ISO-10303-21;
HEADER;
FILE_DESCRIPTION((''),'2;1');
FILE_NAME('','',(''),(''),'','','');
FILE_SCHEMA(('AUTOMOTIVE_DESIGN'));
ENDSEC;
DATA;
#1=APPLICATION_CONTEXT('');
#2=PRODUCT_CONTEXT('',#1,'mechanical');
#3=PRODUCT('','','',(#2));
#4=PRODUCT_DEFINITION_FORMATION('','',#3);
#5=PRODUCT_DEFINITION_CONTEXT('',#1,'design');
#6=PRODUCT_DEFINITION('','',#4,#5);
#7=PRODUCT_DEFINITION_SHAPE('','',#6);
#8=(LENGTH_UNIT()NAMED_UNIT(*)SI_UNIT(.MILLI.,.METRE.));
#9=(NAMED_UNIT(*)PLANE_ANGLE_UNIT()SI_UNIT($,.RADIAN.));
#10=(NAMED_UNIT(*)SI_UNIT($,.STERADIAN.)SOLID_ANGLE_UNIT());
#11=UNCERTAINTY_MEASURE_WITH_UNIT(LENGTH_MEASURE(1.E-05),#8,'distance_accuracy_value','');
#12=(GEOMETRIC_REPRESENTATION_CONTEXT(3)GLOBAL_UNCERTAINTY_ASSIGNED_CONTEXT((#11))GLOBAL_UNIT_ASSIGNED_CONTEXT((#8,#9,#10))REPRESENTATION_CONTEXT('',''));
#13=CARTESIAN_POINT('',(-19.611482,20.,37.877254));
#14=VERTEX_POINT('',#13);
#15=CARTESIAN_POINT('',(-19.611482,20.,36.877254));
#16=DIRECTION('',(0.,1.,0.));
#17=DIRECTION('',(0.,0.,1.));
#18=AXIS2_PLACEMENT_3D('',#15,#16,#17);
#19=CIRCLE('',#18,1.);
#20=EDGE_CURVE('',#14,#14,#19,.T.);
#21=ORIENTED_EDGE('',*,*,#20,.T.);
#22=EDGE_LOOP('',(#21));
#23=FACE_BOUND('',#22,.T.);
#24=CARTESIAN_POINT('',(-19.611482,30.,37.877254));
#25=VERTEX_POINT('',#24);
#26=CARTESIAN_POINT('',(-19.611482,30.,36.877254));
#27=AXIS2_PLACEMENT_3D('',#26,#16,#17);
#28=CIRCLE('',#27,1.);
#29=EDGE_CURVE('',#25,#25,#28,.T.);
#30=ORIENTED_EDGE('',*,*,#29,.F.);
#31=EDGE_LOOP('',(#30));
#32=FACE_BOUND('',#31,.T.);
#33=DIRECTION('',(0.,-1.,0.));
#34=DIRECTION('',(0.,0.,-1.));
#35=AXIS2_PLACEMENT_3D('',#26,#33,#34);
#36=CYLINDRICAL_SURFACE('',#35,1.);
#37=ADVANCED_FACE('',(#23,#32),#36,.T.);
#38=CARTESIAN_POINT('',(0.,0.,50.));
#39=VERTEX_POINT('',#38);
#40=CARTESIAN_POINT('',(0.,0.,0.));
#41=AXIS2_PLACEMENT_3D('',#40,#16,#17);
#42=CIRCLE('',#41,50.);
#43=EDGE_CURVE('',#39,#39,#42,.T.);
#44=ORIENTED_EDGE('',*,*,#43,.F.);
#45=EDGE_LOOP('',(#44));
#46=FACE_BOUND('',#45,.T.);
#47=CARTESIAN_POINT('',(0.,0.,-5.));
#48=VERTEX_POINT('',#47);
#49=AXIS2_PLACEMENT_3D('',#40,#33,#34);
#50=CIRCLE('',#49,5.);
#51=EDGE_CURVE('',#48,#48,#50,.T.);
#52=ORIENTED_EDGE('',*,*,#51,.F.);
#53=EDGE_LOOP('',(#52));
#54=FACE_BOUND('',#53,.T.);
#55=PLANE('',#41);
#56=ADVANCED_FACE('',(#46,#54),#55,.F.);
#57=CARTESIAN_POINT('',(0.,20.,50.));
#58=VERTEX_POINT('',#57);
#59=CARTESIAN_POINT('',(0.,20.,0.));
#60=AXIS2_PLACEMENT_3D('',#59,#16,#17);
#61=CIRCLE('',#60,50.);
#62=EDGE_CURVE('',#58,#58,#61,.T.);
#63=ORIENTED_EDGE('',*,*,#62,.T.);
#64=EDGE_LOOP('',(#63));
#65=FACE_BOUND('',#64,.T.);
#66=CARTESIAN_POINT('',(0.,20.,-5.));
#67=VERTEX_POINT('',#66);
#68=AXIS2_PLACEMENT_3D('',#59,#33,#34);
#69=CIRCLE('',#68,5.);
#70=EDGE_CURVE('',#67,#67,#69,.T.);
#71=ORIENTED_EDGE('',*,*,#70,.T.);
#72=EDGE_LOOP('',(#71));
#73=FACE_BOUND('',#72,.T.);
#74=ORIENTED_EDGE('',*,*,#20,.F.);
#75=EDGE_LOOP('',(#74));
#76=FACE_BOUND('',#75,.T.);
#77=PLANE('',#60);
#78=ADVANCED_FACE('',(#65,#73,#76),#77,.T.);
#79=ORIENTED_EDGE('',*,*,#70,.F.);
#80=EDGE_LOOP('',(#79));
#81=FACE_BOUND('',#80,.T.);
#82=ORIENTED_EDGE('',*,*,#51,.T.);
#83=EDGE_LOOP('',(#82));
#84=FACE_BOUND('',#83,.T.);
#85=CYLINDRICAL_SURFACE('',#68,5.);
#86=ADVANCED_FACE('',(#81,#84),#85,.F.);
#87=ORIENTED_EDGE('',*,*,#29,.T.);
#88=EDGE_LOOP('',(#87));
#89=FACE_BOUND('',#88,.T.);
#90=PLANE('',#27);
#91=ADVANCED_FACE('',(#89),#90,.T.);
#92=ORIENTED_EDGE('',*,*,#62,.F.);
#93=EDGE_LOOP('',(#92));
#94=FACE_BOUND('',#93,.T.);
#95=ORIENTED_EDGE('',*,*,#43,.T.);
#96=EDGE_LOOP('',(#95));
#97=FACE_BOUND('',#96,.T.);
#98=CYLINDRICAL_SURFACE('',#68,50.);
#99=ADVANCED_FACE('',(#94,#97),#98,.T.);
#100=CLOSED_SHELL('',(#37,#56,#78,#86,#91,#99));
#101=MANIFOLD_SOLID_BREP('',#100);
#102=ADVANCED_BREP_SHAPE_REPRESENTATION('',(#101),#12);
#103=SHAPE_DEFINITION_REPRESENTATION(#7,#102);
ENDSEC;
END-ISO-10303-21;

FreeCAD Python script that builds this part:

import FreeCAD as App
import Part
import Sketcher
Q = App.Units.Quantity

doc = App.newDocument("Part")
params = doc.addObject("Spreadsheet::Sheet", "Params")
for row, (alias, value) in enumerate([
    ("sketch1_diameter", "100 mm"),
    ("pad1_length", "20 mm"),
    ("sketch2_diameter", "10 mm"),
    ("pocket1_length", "20 mm"),
    ("sketch3_diameter", "2 mm"),
    ("pad2_length", "10 mm"),
], start=1):
    params.set(f"A{row}", alias)
    params.set(f"B{row}", "=" + value)
    params.setAlias(f"B{row}", alias)

body = doc.addObject("PartDesign::Body", "Body")

# Sketch on XZ plane
sketch1 = body.newObject("Sketcher::SketchObject", "Sketch")
sketch1.AttachmentSupport = (doc.getObject("XZ_Plane"), [""])
sketch1.MapMode = "FlatFace"
sketch1.addGeometry(Part.Circle(App.Vector(0, 0, 0), App.Vector(0, 0, 1), 50), False)
sketch1.addConstraint(Sketcher.Constraint("Coincident", 0, 3, -1, 1))
sketch1.addConstraint(Sketcher.Constraint("Diameter", 0, Q("100 mm")))
sketch1.setExpression("Constraints[1]", "Params.sketch1_diameter")
pad1 = body.newObject("PartDesign::Pad", "Pad")
pad1.Profile = sketch1
pad1.setExpression("Length", "Params.pad1_length")
pad1.Reversed = True

# Sketch on XZ plane
sketch2 = body.newObject("Sketcher::SketchObject", "Sketch001")
sketch2.AttachmentSupport = (doc.getObject("XZ_Plane"), [""])
sketch2.MapMode = "FlatFace"
sketch2.addGeometry(Part.Circle(App.Vector(0, 0, 0), App.Vector(0, 0, 1), 5), False)
sketch2.addConstraint(Sketcher.Constraint("Coincident", 0, 3, -1, 1))
sketch2.addConstraint(Sketcher.Constraint("Diameter", 0, Q("10 mm")))
sketch2.setExpression("Constraints[1]", "Params.sketch2_diameter")
pocket1 = body.newObject("PartDesign::Pocket", "Pocket")
pocket1.Profile = sketch2
pocket1.setExpression("Length", "Params.pocket1_length")

# Sketch on XZ plane
sketch3 = body.newObject("Sketcher::SketchObject", "Sketch002")
sketch3.AttachmentSupport = (doc.getObject("XZ_Plane"), [""])
sketch3.MapMode = "FlatFace"
sketch3.AttachmentOffset = App.Placement(App.Vector(0, 0, -20), App.Rotation())
sketch3.addGeometry(Part.Circle(App.Vector(-19.6, 36.9, 0), App.Vector(0, 0, 1), 1), False)
sketch3.addConstraint(Sketcher.Constraint("Diameter", 0, Q("2 mm")))
sketch3.addConstraint(Sketcher.Constraint("DistanceX", 0, 3, -1, 1, Q("19.611482 mm")))
sketch3.addConstraint(Sketcher.Constraint("DistanceY", -1, 1, 0, 3, Q("36.877254 mm")))
sketch3.setExpression("Constraints[0]", "Params.sketch3_diameter")
pad2 = body.newObject("PartDesign::Pad", "Pad001")
pad2.Profile = sketch3
pad2.setExpression("Length", "Params.pad2_length")
pad2.Reversed = True

doc.recompute()
